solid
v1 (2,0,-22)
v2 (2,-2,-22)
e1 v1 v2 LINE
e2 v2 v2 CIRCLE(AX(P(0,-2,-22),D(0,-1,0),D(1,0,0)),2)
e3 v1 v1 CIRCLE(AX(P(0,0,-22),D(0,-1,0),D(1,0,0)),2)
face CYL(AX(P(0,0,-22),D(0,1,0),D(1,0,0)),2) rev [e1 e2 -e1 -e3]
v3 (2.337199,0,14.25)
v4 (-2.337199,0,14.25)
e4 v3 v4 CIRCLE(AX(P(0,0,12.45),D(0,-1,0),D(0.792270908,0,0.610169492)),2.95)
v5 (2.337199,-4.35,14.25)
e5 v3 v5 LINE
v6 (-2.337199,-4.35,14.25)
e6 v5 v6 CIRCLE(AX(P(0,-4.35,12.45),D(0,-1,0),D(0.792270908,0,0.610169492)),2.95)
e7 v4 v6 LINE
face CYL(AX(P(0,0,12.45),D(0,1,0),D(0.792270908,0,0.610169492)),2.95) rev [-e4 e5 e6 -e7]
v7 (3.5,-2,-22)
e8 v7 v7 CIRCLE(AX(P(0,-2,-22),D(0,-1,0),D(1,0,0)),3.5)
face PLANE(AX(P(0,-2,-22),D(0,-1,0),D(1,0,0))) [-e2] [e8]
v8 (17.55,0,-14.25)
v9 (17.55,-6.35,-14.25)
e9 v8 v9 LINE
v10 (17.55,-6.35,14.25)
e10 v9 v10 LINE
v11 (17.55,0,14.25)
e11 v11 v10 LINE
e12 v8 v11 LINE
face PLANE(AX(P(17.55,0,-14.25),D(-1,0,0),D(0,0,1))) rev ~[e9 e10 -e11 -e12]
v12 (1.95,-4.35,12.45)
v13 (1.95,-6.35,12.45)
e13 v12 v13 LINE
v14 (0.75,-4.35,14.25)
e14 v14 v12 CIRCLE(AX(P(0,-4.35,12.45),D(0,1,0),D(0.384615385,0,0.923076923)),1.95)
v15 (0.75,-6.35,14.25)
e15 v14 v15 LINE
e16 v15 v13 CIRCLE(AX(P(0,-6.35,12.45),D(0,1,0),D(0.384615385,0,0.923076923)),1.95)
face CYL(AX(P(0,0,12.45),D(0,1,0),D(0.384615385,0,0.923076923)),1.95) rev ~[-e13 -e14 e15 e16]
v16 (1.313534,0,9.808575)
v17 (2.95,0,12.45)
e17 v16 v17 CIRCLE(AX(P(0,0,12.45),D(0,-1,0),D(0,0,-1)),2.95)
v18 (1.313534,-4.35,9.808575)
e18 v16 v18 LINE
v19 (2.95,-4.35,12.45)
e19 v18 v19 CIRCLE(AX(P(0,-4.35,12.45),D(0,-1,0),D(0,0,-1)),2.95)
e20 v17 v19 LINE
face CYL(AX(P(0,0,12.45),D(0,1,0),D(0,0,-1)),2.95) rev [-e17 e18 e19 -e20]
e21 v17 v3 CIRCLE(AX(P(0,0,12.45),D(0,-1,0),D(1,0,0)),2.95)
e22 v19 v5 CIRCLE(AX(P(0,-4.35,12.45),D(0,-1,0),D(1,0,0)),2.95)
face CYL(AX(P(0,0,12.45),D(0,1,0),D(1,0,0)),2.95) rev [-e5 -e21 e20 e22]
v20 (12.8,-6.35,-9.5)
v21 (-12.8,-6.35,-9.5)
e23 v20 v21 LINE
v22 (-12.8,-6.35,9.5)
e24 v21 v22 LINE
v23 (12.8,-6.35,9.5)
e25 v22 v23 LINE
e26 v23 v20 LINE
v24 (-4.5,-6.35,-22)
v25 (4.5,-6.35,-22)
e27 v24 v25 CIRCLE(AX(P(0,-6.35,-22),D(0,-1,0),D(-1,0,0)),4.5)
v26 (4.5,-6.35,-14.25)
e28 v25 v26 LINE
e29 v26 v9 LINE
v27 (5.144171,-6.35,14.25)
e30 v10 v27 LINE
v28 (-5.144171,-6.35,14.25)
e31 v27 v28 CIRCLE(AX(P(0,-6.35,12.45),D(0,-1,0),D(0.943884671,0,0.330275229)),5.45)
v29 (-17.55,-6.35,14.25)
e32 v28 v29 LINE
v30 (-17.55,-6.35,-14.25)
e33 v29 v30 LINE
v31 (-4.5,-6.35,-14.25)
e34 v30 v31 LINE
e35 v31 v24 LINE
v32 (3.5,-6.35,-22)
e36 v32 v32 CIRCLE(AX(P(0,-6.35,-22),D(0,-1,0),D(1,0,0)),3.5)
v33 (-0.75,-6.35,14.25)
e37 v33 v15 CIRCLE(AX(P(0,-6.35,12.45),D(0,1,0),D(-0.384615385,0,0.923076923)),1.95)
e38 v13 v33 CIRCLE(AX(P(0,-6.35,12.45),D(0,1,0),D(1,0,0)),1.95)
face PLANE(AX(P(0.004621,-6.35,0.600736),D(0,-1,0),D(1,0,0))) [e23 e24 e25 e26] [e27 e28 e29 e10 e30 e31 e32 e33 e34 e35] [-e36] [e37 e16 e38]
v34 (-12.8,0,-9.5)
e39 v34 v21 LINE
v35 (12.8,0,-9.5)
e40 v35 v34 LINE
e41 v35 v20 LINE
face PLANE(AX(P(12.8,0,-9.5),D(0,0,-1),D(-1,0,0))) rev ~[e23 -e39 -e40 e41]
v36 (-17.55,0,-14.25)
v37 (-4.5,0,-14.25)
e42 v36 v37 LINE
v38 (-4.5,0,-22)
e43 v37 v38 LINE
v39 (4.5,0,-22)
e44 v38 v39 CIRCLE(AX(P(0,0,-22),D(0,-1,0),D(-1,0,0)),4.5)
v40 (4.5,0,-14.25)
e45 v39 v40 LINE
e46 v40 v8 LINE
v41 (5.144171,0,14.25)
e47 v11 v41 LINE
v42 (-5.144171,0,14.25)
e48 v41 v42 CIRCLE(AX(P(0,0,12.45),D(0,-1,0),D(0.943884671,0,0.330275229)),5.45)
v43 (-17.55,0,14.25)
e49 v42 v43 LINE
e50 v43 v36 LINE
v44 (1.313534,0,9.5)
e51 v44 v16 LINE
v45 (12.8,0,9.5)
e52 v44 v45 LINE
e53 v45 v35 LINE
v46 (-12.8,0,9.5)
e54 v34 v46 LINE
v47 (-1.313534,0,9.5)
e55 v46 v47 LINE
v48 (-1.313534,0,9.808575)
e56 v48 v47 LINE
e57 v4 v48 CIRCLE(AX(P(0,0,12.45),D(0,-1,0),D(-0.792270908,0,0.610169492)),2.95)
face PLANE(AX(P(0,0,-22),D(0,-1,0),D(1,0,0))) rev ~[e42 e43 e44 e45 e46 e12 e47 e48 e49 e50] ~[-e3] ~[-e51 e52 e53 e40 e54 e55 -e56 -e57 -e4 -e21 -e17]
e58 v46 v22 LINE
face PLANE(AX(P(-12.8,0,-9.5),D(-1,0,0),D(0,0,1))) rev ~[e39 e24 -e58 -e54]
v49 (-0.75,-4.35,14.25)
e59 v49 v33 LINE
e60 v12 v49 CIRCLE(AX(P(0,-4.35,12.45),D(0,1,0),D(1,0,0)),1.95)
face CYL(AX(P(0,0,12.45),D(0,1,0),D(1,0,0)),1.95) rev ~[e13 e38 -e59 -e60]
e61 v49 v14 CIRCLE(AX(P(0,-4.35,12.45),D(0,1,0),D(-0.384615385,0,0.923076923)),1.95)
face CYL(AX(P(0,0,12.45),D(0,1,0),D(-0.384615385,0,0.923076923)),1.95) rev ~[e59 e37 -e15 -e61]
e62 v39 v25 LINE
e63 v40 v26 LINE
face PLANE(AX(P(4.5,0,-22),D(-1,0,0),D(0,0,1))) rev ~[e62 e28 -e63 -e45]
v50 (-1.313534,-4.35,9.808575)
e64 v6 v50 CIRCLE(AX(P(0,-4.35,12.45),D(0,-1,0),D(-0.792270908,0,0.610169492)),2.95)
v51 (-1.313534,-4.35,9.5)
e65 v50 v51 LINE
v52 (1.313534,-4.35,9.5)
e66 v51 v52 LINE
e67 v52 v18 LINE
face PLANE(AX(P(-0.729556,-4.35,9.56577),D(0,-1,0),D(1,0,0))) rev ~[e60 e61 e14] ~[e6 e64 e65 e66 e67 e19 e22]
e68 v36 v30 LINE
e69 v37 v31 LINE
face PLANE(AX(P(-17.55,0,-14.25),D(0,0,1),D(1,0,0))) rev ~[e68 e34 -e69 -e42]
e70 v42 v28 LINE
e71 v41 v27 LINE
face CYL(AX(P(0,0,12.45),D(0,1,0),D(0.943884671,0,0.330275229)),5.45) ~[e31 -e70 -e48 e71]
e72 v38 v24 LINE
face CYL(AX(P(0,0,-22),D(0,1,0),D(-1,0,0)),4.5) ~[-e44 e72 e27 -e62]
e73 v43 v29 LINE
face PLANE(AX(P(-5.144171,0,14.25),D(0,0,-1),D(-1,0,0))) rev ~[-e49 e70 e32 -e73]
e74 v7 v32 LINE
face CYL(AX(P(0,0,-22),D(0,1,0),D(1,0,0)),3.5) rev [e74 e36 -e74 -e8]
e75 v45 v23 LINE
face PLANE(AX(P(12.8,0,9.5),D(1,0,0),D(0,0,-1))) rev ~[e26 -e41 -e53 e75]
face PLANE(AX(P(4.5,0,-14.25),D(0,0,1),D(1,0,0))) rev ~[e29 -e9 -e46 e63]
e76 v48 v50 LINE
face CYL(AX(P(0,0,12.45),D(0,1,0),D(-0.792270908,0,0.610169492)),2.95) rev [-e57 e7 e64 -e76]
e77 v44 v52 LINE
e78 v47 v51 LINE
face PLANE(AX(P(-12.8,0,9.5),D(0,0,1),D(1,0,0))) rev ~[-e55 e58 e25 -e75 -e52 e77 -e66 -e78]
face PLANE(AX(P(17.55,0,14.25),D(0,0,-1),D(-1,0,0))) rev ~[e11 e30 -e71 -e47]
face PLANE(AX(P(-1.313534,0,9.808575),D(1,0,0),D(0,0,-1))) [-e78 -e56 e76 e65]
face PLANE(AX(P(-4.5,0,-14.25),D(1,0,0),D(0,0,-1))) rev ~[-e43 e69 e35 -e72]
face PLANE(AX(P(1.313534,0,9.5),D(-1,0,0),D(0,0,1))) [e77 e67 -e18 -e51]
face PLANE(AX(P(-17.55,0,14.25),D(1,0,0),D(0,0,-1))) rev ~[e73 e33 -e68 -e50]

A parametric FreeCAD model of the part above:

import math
import FreeCAD as App
import Part
import Sketcher


def add_polygon(sketch, points):
    """Adds a closed chain of lines whose ends are joined by coincident constraints."""
    first, n = sketch.GeometryCount, len(points)
    for a, b in zip(points, points[1:] + points[:1]):
        sketch.addGeometry(Part.LineSegment(App.Vector(*a, 0), App.Vector(*b, 0)), False)
    for i in range(n):
        sketch.addConstraint(Sketcher.Constraint("Coincident", first + i, 2, first + (i + 1) % n, 1))

doc = App.newDocument("Part")
body = doc.addObject("PartDesign::Body", "Body")

# Sketch on XZ plane
sketch1 = doc.addObject("Sketcher::SketchObject", "Sketch")
body.addObject(sketch1)
sketch1.AttachmentSupport = (doc.XZ_Plane, [""])
sketch1.MapMode = "FlatFace"
sketch1.addGeometry(Part.LineSegment(App.Vector(17.55, 14.25, 0), App.Vector(5.144171, 14.25, 0)), False)  # 0
sketch1.addGeometry(Part.ArcOfCircle(Part.Circle(App.Vector(0, 12.45, 0), App.Vector(0, 0, 1), 5.45), math.radians(19.285482), math.radians(160.714518)), False)  # 1
sketch1.addGeometry(Part.LineSegment(App.Vector(-5.144171, 14.25, 0), App.Vector(-17.55, 14.25, 0)), False)  # 2
sketch1.addGeometry(Part.LineSegment(App.Vector(-17.55, 14.25, 0), App.Vector(-17.55, -14.25, 0)), False)  # 3
sketch1.addGeometry(Part.LineSegment(App.Vector(-17.55, -14.25, 0), App.Vector(-4.5, -14.25, 0)), False)  # 4
sketch1.addGeometry(Part.LineSegment(App.Vector(-4.5, -14.25, 0), App.Vector(-4.5, -22, 0)), False)  # 5
sketch1.addGeometry(Part.ArcOfCircle(Part.Circle(App.Vector(0, -22, 0), App.Vector(0, 0, 1), 4.5), math.radians(180), math.radians(360)), False)  # 6
sketch1.addGeometry(Part.LineSegment(App.Vector(4.5, -22, 0), App.Vector(4.5, -14.25, 0)), False)  # 7
sketch1.addGeometry(Part.LineSegment(App.Vector(4.5, -14.25, 0), App.Vector(17.55, -14.25, 0)), False)  # 8
sketch1.addGeometry(Part.LineSegment(App.Vector(17.55, -14.25, 0), App.Vector(17.55, 14.25, 0)), False)  # 9
sketch1.addGeometry(Part.Circle(App.Vector(0, -22, 0), App.Vector(0, 0, 1), 3.5), False)  # 10
sketch1.addGeometry(Part.ArcOfCircle(Part.Circle(App.Vector(0, 12.45, 0), App.Vector(0, 0, 1), 1.95), math.radians(0), math.radians(67.380135)), False)  # 11
sketch1.addGeometry(Part.ArcOfCircle(Part.Circle(App.Vector(0, 12.45, 0), App.Vector(0, 0, 1), 1.95), math.radians(112.619865), math.radians(360)), False)  # 12
sketch1.addGeometry(Part.ArcOfCircle(Part.Circle(App.Vector(0, 12.45, 0), App.Vector(0, 0, 1), 1.95), math.radians(67.380135), math.radians(112.619865)), False)  # 13
add_polygon(sketch1, [(-12.8, 9.5), (12.8, 9.5), (12.8, -9.5), (-12.8, -9.5)])  # lines 14-17
sketch1.addConstraint([
    Sketcher.Constraint("Coincident", 0, 2, 1, 1),
    Sketcher.Constraint("Coincident", 1, 2, 2, 1),
    Sketcher.Constraint("Coincident", 2, 2, 3, 1),
    Sketcher.Constraint("Coincident", 3, 2, 4, 1),
    Sketcher.Constraint("Coincident", 4, 2, 5, 1),
    Sketcher.Constraint("Tangent", 5, 2, 6, 1),
    Sketcher.Constraint("Tangent", 6, 2, 7, 1),
    Sketcher.Constraint("Coincident", 7, 2, 8, 1),
    Sketcher.Constraint("Coincident", 8, 2, 9, 1),
    Sketcher.Constraint("Coincident", 9, 2, 0, 1),
    Sketcher.Constraint("Tangent", 11, 1, 12, 2),
    Sketcher.Constraint("Tangent", 12, 1, 13, 2),
    Sketcher.Constraint("Tangent", 13, 1, 11, 2),
    Sketcher.Constraint("Horizontal", 0),
    Sketcher.Constraint("Horizontal", 2),
    Sketcher.Constraint("Vertical", 3),
    Sketcher.Constraint("Horizontal", 4),
    Sketcher.Constraint("Vertical", 5),
    Sketcher.Constraint("Vertical", 7),
    Sketcher.Constraint("Horizontal", 8),
    Sketcher.Constraint("Vertical", 9),
    Sketcher.Constraint("Horizontal", 14),
    Sketcher.Constraint("Vertical", 15),
    Sketcher.Constraint("Horizontal", 16),
    Sketcher.Constraint("Vertical", 17),
    Sketcher.Constraint("Coincident", 10, 3, 6, 3),
    Sketcher.Constraint("Coincident", 11, 3, 1, 3),
    Sketcher.Constraint("Symmetric", 2, 2, 8, 2, -1, 1),
    Sketcher.Constraint("Symmetric", 14, 2, 16, 2, -1, 1),
    Sketcher.Constraint("Symmetric", 0, 2, 1, 2, -2),
    Sketcher.Constraint("Symmetric", 4, 2, 7, 2, -2),
    Sketcher.Constraint("Horizontal", 13, 3, 11, 1),
    Sketcher.Constraint("Horizontal", 9, 2, 12, 1),
    Sketcher.Constraint("Horizontal", 12, 1, 13, 1),
    Sketcher.Constraint("Diameter", 10, 7.0),
    Sketcher.Constraint("Radius", 6, 4.5),
    Sketcher.Constraint("DistanceY", 15, 2, 15, 1, 19.0),
    Sketcher.Constraint("Radius", 1, 5.45),
    Sketcher.Constraint("Radius", 11, 1.95),
    Sketcher.Constraint("DistanceX", 14, 1, 14, 2, 25.6),
    Sketcher.Constraint("DistanceY", 3, 2, 3, 1, 28.5),
    Sketcher.Constraint("DistanceY", 6, 3, -1, 1, 22.0),
    Sketcher.Constraint("DistanceX", 4, 1, 4, 2, 13.05),
    Sketcher.Constraint("DistanceY", 1, 3, 0, 2, 1.8),
])
pad1 = doc.addObject("PartDesign::Pad", "Pad")
body.addObject(pad1)
pad1.Profile = sketch1
pad1.Length = 6.35

# Sketch on XZ plane
sketch2 = doc.addObject("Sketcher::SketchObject", "Sketch001")
body.addObject(sketch2)
sketch2.AttachmentSupport = (doc.XZ_Plane, [""])
sketch2.MapMode = "FlatFace"
sketch2.addGeometry([
    Part.Circle(App.Vector(0, -22, 0), App.Vector(0, 0, 1), 3.5),
    Part.Circle(App.Vector(0, -22, 0), App.Vector(0, 0, 1), 2),
], False)
sketch2.addConstraint([
    Sketcher.Constraint("Coincident", 1, 3, 0, 3),
    Sketcher.Constraint("PointOnObject", 0, 3, -2),
    Sketcher.Constraint("Diameter", 0, 7.0),
    Sketcher.Constraint("Diameter", 1, 4.0),
    Sketcher.Constraint("DistanceY", 0, 3, -1, 1, 22.0),
])
pad2 = doc.addObject("PartDesign::Pad", "Pad001")
body.addObject(pad2)
pad2.Profile = sketch2
pad2.Length = 2

# Sketch on XZ plane
sketch3 = doc.addObject("Sketcher::SketchObject", "Sketch002")
body.addObject(sketch3)
sketch3.AttachmentSupport = (doc.XZ_Plane, [""])
sketch3.MapMode = "FlatFace"
sketch3.addGeometry([
    Part.ArcOfCircle(Part.Circle(App.Vector(0, 12.45, 0), App.Vector(0, 0, 1), 2.95), math.radians(142.398241), math.radians(243.559647)),  # 0
    Part.LineSegment(App.Vector(-1.313534, 9.808575, 0), App.Vector(-1.313534, 9.5, 0)),  # 1
    Part.LineSegment(App.Vector(-1.313534, 9.5, 0), App.Vector(1.313534, 9.5, 0)),  # 2
    Part.LineSegment(App.Vector(1.313534, 9.5, 0), App.Vector(1.313534, 9.808575, 0)),  # 3
    Part.ArcOfCircle(Part.Circle(App.Vector(0, 12.45, 0), App.Vector(0, 0, 1), 2.95), math.radians(-63.559647), math.radians(0)),  # 4
    Part.ArcOfCircle(Part.Circle(App.Vector(0, 12.45, 0), App.Vector(0, 0, 1), 2.95), math.radians(0), math.radians(37.601759)),  # 5
    Part.ArcOfCircle(Part.Circle(App.Vector(0, 12.45, 0), App.Vector(0, 0, 1), 2.95), math.radians(37.601759), math.radians(142.398241)),  # 6
    Part.ArcOfCircle(Part.Circle(App.Vector(0, 12.45, 0), App.Vector(0, 0, 1), 1.95), math.radians(0), math.radians(67.380135)),  # 7
    Part.ArcOfCircle(Part.Circle(App.Vector(0, 12.45, 0), App.Vector(0, 0, 1), 1.95), math.radians(112.619865), math.radians(360)),  # 8
    Part.ArcOfCircle(Part.Circle(App.Vector(0, 12.45, 0), App.Vector(0, 0, 1), 1.95), math.radians(67.380135), math.radians(112.619865)),  # 9
], False)
sketch3.addConstraint([
    Sketcher.Constraint("Coincident", 0, 2, 1, 1),
    Sketcher.Constraint("Coincident", 1, 2, 2, 1),
    Sketcher.Constraint("Coincident", 2, 2, 3, 1),
    Sketcher.Constraint("Coincident", 3, 2, 4, 1),
    Sketcher.Constraint("Tangent", 4, 2, 5, 1),
    Sketcher.Constraint("Tangent", 5, 2, 6, 1),
    Sketcher.Constraint("Tangent", 6, 2, 0, 1),
    Sketcher.Constraint("Tangent", 7, 1, 8, 2),
    Sketcher.Constraint("Tangent", 8, 1, 9, 2),
    Sketcher.Constraint("Tangent", 9, 1, 7, 2),
    Sketcher.Constraint("Vertical", 1),
    Sketcher.Constraint("Horizontal", 2),
    Sketcher.Constraint("Vertical", 3),
    Sketcher.Constraint("Coincident", 4, 3, 0, 3),
    Sketcher.Constraint("Coincident", 7, 3, 0, 3),
    Sketcher.Constraint("Equal", 0, 4),
    Sketcher.Constraint("Symmetric", 0, 2, 3, 2, -2),
    Sketcher.Constraint("Horizontal", 9, 3, 4, 2),
    Sketcher.Constraint("Horizontal", 5, 2, 6, 2),
    Sketcher.Constraint("Horizontal", 4, 2, 7, 1),
    Sketcher.Constraint("Horizontal", 6, 2, 8, 1),
    Sketcher.Constraint("Horizontal", 8, 1, 9, 1),
    Sketcher.Constraint("Radius", 0, 2.95),
    Sketcher.Constraint("Radius", 7, 1.95),
    Sketcher.Constraint("DistanceY", -1, 1, 1, 2, 9.5),
    Sketcher.Constraint("DistanceY", 4, 2, 5, 2, 1.8),
    Sketcher.Constraint("DistanceY", -1, 1, 0, 3, 12.45),
    Sketcher.Constraint("DistanceX", 2, 1, 2, 2, 2.627069),
])
pocket1 = doc.addObject("PartDesign::Pocket", "Pocket")
body.addObject(pocket1)
pocket1.Profile = sketch3
pocket1.Length = 4.35
pocket1.Reversed = True

doc.recompute()
